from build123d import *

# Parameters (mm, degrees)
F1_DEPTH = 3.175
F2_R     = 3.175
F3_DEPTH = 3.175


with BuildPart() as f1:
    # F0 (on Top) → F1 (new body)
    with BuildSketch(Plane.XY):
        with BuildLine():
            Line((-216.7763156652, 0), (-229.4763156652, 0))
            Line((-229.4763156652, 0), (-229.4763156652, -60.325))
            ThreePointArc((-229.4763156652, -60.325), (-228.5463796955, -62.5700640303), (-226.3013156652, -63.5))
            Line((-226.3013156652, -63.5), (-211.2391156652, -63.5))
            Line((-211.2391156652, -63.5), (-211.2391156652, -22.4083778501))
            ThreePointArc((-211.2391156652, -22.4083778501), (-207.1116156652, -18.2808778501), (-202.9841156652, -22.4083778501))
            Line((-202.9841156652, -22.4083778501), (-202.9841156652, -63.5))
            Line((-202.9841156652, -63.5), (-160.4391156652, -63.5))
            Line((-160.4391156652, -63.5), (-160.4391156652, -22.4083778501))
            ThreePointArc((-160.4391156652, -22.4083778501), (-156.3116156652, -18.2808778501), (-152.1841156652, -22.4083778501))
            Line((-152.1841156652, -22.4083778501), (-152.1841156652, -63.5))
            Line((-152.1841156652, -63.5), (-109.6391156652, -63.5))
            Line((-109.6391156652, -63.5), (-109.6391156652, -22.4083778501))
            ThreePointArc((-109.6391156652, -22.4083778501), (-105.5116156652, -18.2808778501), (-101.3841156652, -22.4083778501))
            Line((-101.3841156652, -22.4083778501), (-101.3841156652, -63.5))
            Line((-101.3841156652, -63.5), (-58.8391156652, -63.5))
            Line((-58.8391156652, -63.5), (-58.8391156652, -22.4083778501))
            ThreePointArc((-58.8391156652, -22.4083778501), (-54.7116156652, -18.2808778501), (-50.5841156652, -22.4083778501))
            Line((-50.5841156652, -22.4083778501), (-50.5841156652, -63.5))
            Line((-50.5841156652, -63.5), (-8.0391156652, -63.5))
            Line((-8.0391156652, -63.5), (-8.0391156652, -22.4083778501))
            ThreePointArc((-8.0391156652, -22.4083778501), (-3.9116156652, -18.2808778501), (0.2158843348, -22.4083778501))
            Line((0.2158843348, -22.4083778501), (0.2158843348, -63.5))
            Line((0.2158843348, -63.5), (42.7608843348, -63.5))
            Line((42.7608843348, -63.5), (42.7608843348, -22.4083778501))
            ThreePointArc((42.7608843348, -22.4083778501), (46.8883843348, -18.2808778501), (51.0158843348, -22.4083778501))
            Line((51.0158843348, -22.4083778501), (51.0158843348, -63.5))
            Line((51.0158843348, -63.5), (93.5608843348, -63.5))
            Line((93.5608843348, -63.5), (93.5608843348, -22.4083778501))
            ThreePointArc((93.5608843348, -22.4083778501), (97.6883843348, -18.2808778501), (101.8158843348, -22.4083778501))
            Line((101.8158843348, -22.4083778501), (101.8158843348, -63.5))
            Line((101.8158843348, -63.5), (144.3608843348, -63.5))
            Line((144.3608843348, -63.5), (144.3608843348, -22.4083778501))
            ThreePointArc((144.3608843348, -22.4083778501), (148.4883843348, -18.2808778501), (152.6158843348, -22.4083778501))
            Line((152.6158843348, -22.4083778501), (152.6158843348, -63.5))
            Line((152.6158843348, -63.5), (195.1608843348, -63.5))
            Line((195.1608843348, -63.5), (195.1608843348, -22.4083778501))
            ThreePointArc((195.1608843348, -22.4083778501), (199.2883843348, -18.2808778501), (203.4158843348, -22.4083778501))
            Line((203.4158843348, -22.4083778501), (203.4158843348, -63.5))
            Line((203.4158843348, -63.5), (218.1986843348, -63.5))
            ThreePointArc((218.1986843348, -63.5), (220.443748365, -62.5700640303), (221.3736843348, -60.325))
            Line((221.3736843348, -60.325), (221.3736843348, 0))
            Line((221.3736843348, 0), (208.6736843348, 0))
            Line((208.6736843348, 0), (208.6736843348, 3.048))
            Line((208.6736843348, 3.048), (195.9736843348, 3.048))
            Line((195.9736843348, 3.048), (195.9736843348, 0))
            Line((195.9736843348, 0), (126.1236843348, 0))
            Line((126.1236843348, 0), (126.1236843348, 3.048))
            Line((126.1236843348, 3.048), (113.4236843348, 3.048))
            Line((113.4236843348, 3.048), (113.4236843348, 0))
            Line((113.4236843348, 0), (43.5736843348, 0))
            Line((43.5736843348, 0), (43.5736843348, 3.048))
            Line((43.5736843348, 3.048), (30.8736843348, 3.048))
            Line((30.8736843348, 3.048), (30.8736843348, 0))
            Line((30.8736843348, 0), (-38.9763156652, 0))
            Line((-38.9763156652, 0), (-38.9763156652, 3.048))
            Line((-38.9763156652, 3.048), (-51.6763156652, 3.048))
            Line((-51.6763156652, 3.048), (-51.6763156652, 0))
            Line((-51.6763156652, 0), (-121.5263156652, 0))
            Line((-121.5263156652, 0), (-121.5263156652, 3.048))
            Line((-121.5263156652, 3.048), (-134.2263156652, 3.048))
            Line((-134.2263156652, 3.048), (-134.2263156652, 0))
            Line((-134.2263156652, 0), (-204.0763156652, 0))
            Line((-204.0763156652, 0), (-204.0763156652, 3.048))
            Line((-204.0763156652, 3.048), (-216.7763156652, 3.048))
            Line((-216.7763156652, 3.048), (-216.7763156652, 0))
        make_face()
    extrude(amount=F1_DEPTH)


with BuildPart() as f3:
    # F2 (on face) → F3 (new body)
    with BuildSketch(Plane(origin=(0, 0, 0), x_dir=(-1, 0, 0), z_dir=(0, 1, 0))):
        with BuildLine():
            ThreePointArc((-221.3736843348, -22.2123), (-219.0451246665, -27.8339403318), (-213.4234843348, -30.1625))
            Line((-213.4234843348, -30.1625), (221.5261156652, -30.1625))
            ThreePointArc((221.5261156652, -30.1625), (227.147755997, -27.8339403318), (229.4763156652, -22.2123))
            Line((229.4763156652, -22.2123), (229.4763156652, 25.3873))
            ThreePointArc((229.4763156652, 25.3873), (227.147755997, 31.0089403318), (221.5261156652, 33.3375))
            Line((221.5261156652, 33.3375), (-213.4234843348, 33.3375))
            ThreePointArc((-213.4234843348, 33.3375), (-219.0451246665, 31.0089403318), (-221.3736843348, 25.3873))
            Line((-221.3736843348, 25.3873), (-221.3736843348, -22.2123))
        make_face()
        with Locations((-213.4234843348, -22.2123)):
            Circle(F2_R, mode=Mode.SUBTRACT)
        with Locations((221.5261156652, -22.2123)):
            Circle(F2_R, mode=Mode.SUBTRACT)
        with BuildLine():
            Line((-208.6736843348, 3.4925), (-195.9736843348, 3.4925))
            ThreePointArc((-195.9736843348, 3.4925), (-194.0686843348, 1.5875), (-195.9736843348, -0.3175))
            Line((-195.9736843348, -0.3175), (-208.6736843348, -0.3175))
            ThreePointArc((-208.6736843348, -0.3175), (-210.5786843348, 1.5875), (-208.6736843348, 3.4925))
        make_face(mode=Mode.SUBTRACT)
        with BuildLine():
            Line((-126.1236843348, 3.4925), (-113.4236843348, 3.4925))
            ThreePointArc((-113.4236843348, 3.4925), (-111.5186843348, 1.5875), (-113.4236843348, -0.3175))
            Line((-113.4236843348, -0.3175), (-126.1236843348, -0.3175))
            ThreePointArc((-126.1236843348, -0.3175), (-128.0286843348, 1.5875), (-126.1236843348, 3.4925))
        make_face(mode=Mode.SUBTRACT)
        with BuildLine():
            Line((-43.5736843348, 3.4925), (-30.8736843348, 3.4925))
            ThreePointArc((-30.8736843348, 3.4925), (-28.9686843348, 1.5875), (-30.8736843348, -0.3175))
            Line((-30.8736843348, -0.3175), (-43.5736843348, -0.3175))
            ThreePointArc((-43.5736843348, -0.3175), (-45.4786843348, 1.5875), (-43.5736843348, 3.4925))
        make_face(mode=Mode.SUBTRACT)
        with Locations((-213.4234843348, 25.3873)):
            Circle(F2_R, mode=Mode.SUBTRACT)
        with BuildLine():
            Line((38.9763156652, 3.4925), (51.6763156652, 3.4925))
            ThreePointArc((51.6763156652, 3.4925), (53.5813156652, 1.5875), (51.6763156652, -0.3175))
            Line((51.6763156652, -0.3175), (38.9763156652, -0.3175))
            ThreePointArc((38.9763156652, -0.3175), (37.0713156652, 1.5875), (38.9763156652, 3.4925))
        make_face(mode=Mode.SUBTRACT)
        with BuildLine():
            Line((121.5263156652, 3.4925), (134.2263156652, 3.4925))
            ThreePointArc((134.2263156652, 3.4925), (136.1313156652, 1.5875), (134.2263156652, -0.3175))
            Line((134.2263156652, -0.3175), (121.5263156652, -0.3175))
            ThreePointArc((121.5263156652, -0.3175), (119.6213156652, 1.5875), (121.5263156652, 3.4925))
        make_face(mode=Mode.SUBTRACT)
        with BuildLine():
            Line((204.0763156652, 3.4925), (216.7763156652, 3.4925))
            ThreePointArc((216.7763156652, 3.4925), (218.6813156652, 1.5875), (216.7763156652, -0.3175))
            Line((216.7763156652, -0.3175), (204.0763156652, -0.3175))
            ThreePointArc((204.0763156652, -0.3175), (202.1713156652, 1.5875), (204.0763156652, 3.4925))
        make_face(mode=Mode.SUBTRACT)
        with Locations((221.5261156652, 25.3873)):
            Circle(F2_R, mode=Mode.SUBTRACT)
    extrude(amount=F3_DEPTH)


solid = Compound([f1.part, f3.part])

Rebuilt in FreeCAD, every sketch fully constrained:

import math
import FreeCAD as App
import Part
import Sketcher
from FreeCAD import Vector
Q = App.Units.Quantity

doc = App.newDocument("Part")
params = doc.addObject("Spreadsheet::Sheet", "Params")
for row, (alias, value) in enumerate([
    ("sketch1_width", "0.5 in"),
    ("sketch1_radius", "0.125 in"),
    ("sketch1_width2", "2.75 in"),
    ("sketch1_height", "0.12 in"),
    ("sketch1_width3", "0.593 in"),
    ("pad1_length", "0.125 in"),
    ("sketch2_diameter", "0.25 in"),
    ("sketch2_width", "0.5 in"),
    ("sketch2_radius", "0.313 in"),
    ("sketch2_radius2", "0.075 in"),
    ("sketch2_width2", "17.124 in"),
    ("pad2_length", "0.125 in"),
], start=1):
    params.set(f"A{row}", alias)
    params.set(f"B{row}", "=" + value)
    params.setAlias(f"B{row}", alias)

body = doc.addObject("PartDesign::Body", "Body")

sketch1 = body.newObject("Sketcher::SketchObject", "Sketch")
sketch1.AttachmentSupport = (doc.getObject("XY_Plane"), [""])
sketch1.MapMode = "FlatFace"
sketch1.addGeometry([
    Part.LineSegment(Vector(-216.776316, 0, 0), Vector(-229.476316, 0, 0)),
    Part.LineSegment(Vector(-229.476316, 0, 0), Vector(-229.476316, -60.325, 0)),
    Part.ArcOfCircle(Part.Circle(Vector(-226.301316, -60.325, 0), Vector(0, 0, 1), 3.175), math.radians(180), math.radians(270)),
    Part.LineSegment(Vector(-226.301316, -63.5, 0), Vector(-211.239116, -63.5, 0)),
    Part.LineSegment(Vector(-211.239116, -63.5, 0), Vector(-211.239116, -22.408378, 0)),
    Part.ArcOfCircle(Part.Circle(Vector(-207.111616, -22.408378, 0), Vector(0, 0, 1), 4.1275), math.radians(0), math.radians(180)),
    Part.LineSegment(Vector(-202.984116, -22.408378, 0), Vector(-202.984116, -63.5, 0)),
    Part.LineSegment(Vector(-202.984116, -63.5, 0), Vector(-160.439116, -63.5, 0)),
    Part.LineSegment(Vector(-160.439116, -63.5, 0), Vector(-160.439116, -22.408378, 0)),
    Part.ArcOfCircle(Part.Circle(Vector(-156.311616, -22.408378, 0), Vector(0, 0, 1), 4.1275), math.radians(0), math.radians(180)),
    Part.LineSegment(Vector(-152.184116, -22.408378, 0), Vector(-152.184116, -63.5, 0)),
    Part.LineSegment(Vector(-152.184116, -63.5, 0), Vector(-109.639116, -63.5, 0)),
    Part.LineSegment(Vector(-109.639116, -63.5, 0), Vector(-109.639116, -22.408378, 0)),
    Part.ArcOfCircle(Part.Circle(Vector(-105.511616, -22.408378, 0), Vector(0, 0, 1), 4.1275), math.radians(0), math.radians(180)),
    Part.LineSegment(Vector(-101.384116, -22.408378, 0), Vector(-101.384116, -63.5, 0)),
    Part.LineSegment(Vector(-101.384116, -63.5, 0), Vector(-58.839116, -63.5, 0)),
    Part.LineSegment(Vector(-58.839116, -63.5, 0), Vector(-58.839116, -22.408378, 0)),
    Part.ArcOfCircle(Part.Circle(Vector(-54.711616, -22.408378, 0), Vector(0, 0, 1), 4.1275), math.radians(0), math.radians(180)),
    Part.LineSegment(Vector(-50.584116, -22.408378, 0), Vector(-50.584116, -63.5, 0)),
    Part.LineSegment(Vector(-50.584116, -63.5, 0), Vector(-8.039116, -63.5, 0)),
    Part.LineSegment(Vector(-8.039116, -63.5, 0), Vector(-8.039116, -22.408378, 0)),
    Part.ArcOfCircle(Part.Circle(Vector(-3.911616, -22.408378, 0), Vector(0, 0, 1), 4.1275), math.radians(0), math.radians(180)),
    Part.LineSegment(Vector(0.215884, -22.408378, 0), Vector(0.215884, -63.5, 0)),
    Part.LineSegment(Vector(0.215884, -63.5, 0), Vector(42.760884, -63.5, 0)),
    Part.LineSegment(Vector(42.760884, -63.5, 0), Vector(42.760884, -22.408378, 0)),
    Part.ArcOfCircle(Part.Circle(Vector(46.888384, -22.408378, 0), Vector(0, 0, 1), 4.1275), math.radians(0), math.radians(180)),
    Part.LineSegment(Vector(51.015884, -22.408378, 0), Vector(51.015884, -63.5, 0)),
    Part.LineSegment(Vector(51.015884, -63.5, 0), Vector(93.560884, -63.5, 0)),
    Part.LineSegment(Vector(93.560884, -63.5, 0), Vector(93.560884, -22.408378, 0)),
    Part.ArcOfCircle(Part.Circle(Vector(97.688384, -22.408378, 0), Vector(0, 0, 1), 4.1275), math.radians(0), math.radians(180)),
    Part.LineSegment(Vector(101.815884, -22.408378, 0), Vector(101.815884, -63.5, 0)),
    Part.LineSegment(Vector(101.815884, -63.5, 0), Vector(144.360884, -63.5, 0)),
    Part.LineSegment(Vector(144.360884, -63.5, 0), Vector(144.360884, -22.408378, 0)),
    Part.ArcOfCircle(Part.Circle(Vector(148.488384, -22.408378, 0), Vector(0, 0, 1), 4.1275), math.radians(0), math.radians(180)),
    Part.LineSegment(Vector(152.615884, -22.408378, 0), Vector(152.615884, -63.5, 0)),
    Part.LineSegment(Vector(152.615884, -63.5, 0), Vector(195.160884, -63.5, 0)),
    Part.LineSegment(Vector(195.160884, -63.5, 0), Vector(195.160884, -22.408378, 0)),
    Part.ArcOfCircle(Part.Circle(Vector(199.288384, -22.408378, 0), Vector(0, 0, 1), 4.1275), math.radians(0), math.radians(180)),
    Part.LineSegment(Vector(203.415884, -22.408378, 0), Vector(203.415884, -63.5, 0)),
    Part.LineSegment(Vector(203.415884, -63.5, 0), Vector(218.198684, -63.5, 0)),
    Part.ArcOfCircle(Part.Circle(Vector(218.198684, -60.325, 0), Vector(0, 0, 1), 3.175), math.radians(-90), math.radians(0)),
    Part.LineSegment(Vector(221.373684, -60.325, 0), Vector(221.373684, 0, 0)),
    Part.LineSegment(Vector(221.373684, 0, 0), Vector(208.673684, 0, 0)),
    Part.LineSegment(Vector(208.673684, 0, 0), Vector(208.673684, 3.048, 0)),
    Part.LineSegment(Vector(208.673684, 3.048, 0), Vector(195.973684, 3.048, 0)),
    Part.LineSegment(Vector(195.973684, 3.048, 0), Vector(195.973684, 0, 0)),
    Part.LineSegment(Vector(195.973684, 0, 0), Vector(126.123684, 0, 0)),
    Part.LineSegment(Vector(126.123684, 0, 0), Vector(126.123684, 3.048, 0)),
    Part.LineSegment(Vector(126.123684, 3.048, 0), Vector(113.423684, 3.048, 0)),
    Part.LineSegment(Vector(113.423684, 3.048, 0), Vector(113.423684, 0, 0)),
    Part.LineSegment(Vector(113.423684, 0, 0), Vector(43.573684, 0, 0)),
    Part.LineSegment(Vector(43.573684, 0, 0), Vector(43.573684, 3.048, 0)),
    Part.LineSegment(Vector(43.573684, 3.048, 0), Vector(30.873684, 3.048, 0)),
    Part.LineSegment(Vector(30.873684, 3.048, 0), Vector(30.873684, 0, 0)),
    Part.LineSegment(Vector(30.873684, 0, 0), Vector(-38.976316, 0, 0)),
    Part.LineSegment(Vector(-38.976316, 0, 0), Vector(-38.976316, 3.048, 0)),
    Part.LineSegment(Vector(-38.976316, 3.048, 0), Vector(-51.676316, 3.048, 0)),
    Part.LineSegment(Vector(-51.676316, 3.048, 0), Vector(-51.676316, 0, 0)),
    Part.LineSegment(Vector(-51.676316, 0, 0), Vector(-121.526316, 0, 0)),
    Part.LineSegment(Vector(-121.526316, 0, 0), Vector(-121.526316, 3.048, 0)),
    Part.LineSegment(Vector(-121.526316, 3.048, 0), Vector(-134.226316, 3.048, 0)),
    Part.LineSegment(Vector(-134.226316, 3.048, 0), Vector(-134.226316, 0, 0)),
    Part.LineSegment(Vector(-134.226316, 0, 0), Vector(-204.076316, 0, 0)),
    Part.LineSegment(Vector(-204.076316, 0, 0), Vector(-204.076316, 3.048, 0)),
    Part.LineSegment(Vector(-204.076316, 3.048, 0), Vector(-216.776316, 3.048, 0)),
    Part.LineSegment(Vector(-216.776316, 3.048, 0), Vector(-216.776316, 0, 0)),
], False)
sketch1.addConstraint([
    Sketcher.Constraint("Coincident", 0, 2, 1, 1),
    Sketcher.Constraint("Tangent", 1, 2, 2, 1),
    Sketcher.Constraint("Tangent", 2, 2, 3, 1),
    Sketcher.Constraint("Coincident", 3, 2, 4, 1),
    Sketcher.Constraint("Tangent", 4, 2, 5, 2),
    Sketcher.Constraint("Tangent", 5, 1, 6, 1),
    Sketcher.Constraint("Coincident", 6, 2, 7, 1),
    Sketcher.Constraint("Coincident", 7, 2, 8, 1),
    Sketcher.Constraint("Tangent", 8, 2, 9, 2),
    Sketcher.Constraint("Tangent", 9, 1, 10, 1),
    Sketcher.Constraint("Coincident", 10, 2, 11, 1),
    Sketcher.Constraint("Coincident", 11, 2, 12, 1),
    Sketcher.Constraint("Tangent", 12, 2, 13, 2),
    Sketcher.Constraint("Tangent", 13, 1, 14, 1),
    Sketcher.Constraint("Coincident", 14, 2, 15, 1),
    Sketcher.Constraint("Coincident", 15, 2, 16, 1),
    Sketcher.Constraint("Tangent", 16, 2, 17, 2),
    Sketcher.Constraint("Tangent", 17, 1, 18, 1),
    Sketcher.Constraint("Coincident", 18, 2, 19, 1),
    Sketcher.Constraint("Coincident", 19, 2, 20, 1),
    Sketcher.Constraint("Tangent", 20, 2, 21, 2),
    Sketcher.Constraint("Tangent", 21, 1, 22, 1),
    Sketcher.Constraint("Coincident", 22, 2, 23, 1),
    Sketcher.Constraint("Coincident", 23, 2, 24, 1),
    Sketcher.Constraint("Tangent", 24, 2, 25, 2),
    Sketcher.Constraint("Tangent", 25, 1, 26, 1),
    Sketcher.Constraint("Coincident", 26, 2, 27, 1),
    Sketcher.Constraint("Coincident", 27, 2, 28, 1),
    Sketcher.Constraint("Tangent", 28, 2, 29, 2),
    Sketcher.Constraint("Tangent", 29, 1, 30, 1),
    Sketcher.Constraint("Coincident", 30, 2, 31, 1),
    Sketcher.Constraint("Coincident", 31, 2, 32, 1),
    Sketcher.Constraint("Tangent", 32, 2, 33, 2),
    Sketcher.Constraint("Tangent", 33, 1, 34, 1),
    Sketcher.Constraint("Coincident", 34, 2, 35, 1),
    Sketcher.Constraint("Coincident", 35, 2, 36, 1),
    Sketcher.Constraint("Tangent", 36, 2, 37, 2),
    Sketcher.Constraint("Tangent", 37, 1, 38, 1),
    Sketcher.Constraint("Coincident", 38, 2, 39, 1),
    Sketcher.Constraint("Tangent", 39, 2, 40, 1),
    Sketcher.Constraint("Tangent", 40, 2, 41, 1),
    Sketcher.Constraint("Coincident", 41, 2, 42, 1),
    Sketcher.Constraint("Coincident", 42, 2, 43, 1),
    Sketcher.Constraint("Coincident", 43, 2, 44, 1),
    Sketcher.Constraint("Coincident", 44, 2, 45, 1),
    Sketcher.Constraint("Coincident", 45, 2, 46, 1),
    Sketcher.Constraint("Coincident", 46, 2, 47, 1),
    Sketcher.Constraint("Coincident", 47, 2, 48, 1),
    Sketcher.Constraint("Coincident", 48, 2, 49, 1),
    Sketcher.Constraint("Coincident", 49, 2, 50, 1),
    Sketcher.Constraint("Coincident", 50, 2, 51, 1),
    Sketcher.Constraint("Coincident", 51, 2, 52, 1),
    Sketcher.Constraint("Coincident", 52, 2, 53, 1),
    Sketcher.Constraint("Coincident", 53, 2, 54, 1),
    Sketcher.Constraint("Coincident", 54, 2, 55, 1),
    Sketcher.Constraint("Coincident", 55, 2, 56, 1),
    Sketcher.Constraint("Coincident", 56, 2, 57, 1),
    Sketcher.Constraint("Coincident", 57, 2, 58, 1),
    Sketcher.Constraint("Coincident", 58, 2, 59, 1),
    Sketcher.Constraint("Coincident", 59, 2, 60, 1),
    Sketcher.Constraint("Coincident", 60, 2, 61, 1),
    Sketcher.Constraint("Coincident", 61, 2, 62, 1),
    Sketcher.Constraint("Coincident", 62, 2, 63, 1),
    Sketcher.Constraint("Coincident", 63, 2, 64, 1),
    Sketcher.Constraint("Coincident", 64, 2, 65, 1),
    Sketcher.Constraint("Coincident", 65, 2, 0, 1),
    Sketcher.Constraint("Horizontal", 0),
    Sketcher.Constraint("Vertical", 1),
    Sketcher.Constraint("Horizontal", 3),
    Sketcher.Constraint("Vertical", 4),
    Sketcher.Constraint("Vertical", 6),
    Sketcher.Constraint("Horizontal", 7),
    Sketcher.Constraint("Vertical", 8),
    Sketcher.Constraint("Vertical", 10),
    Sketcher.Constraint("Horizontal", 11),
    Sketcher.Constraint("Vertical", 12),
    Sketcher.Constraint("Vertical", 14),
    Sketcher.Constraint("Horizontal", 15),
    Sketcher.Constraint("Vertical", 16),
    Sketcher.Constraint("Vertical", 18),
    Sketcher.Constraint("Horizontal", 19),
    Sketcher.Constraint("Vertical", 20),
    Sketcher.Constraint("Vertical", 22),
    Sketcher.Constraint("Horizontal", 23),
    Sketcher.Constraint("Vertical", 24),
    Sketcher.Constraint("Vertical", 26),
    Sketcher.Constraint("Horizontal", 27),
    Sketcher.Constraint("Vertical", 28),
    Sketcher.Constraint("Vertical", 30),
    Sketcher.Constraint("Horizontal", 31),
    Sketcher.Constraint("Vertical", 32),
    Sketcher.Constraint("Vertical", 34),
    Sketcher.Constraint("Horizontal", 35),
    Sketcher.Constraint("Vertical", 36),
    Sketcher.Constraint("Vertical", 38),
    Sketcher.Constraint("Horizontal", 39),
    Sketcher.Constraint("Vertical", 41),
    Sketcher.Constraint("Horizontal", 42),
    Sketcher.Constraint("Vertical", 43),
    Sketcher.Constraint("Horizontal", 44),
    Sketcher.Constraint("Vertical", 45),
    Sketcher.Constraint("Horizontal", 46),
    Sketcher.Constraint("Vertical", 47),
    Sketcher.Constraint("Horizontal", 48),
    Sketcher.Constraint("Vertical", 49),
    Sketcher.Constraint("Horizontal", 50),
    Sketcher.Constraint("Vertical", 51),
    Sketcher.Constraint("Horizontal", 52),
    Sketcher.Constraint("Vertical", 53),
    Sketcher.Constraint("Horizontal", 54),
    Sketcher.Constraint("Vertical", 55),
    Sketcher.Constraint("Horizontal", 56),
    Sketcher.Constraint("Vertical", 57),
    Sketcher.Constraint("Horizontal", 58),
    Sketcher.Constraint("Vertical", 59),
    Sketcher.Constraint("Horizontal", 60),
    Sketcher.Constraint("Vertical", 61),
    Sketcher.Constraint("Horizontal", 62),
    Sketcher.Constraint("Vertical", 63),
    Sketcher.Constraint("Horizontal", 64),
    Sketcher.Constraint("Vertical", 65),
    Sketcher.Constraint("Equal", 5, 9),
    Sketcher.Constraint("Equal", 9, 13),
    Sketcher.Constraint("Equal", 13, 17),
    Sketcher.Constraint("Equal", 17, 21),
    Sketcher.Constraint("Equal", 21, 25),
    Sketcher.Constraint("Equal", 25, 29),
    Sketcher.Constraint("Equal", 29, 33),
    Sketcher.Constraint("Equal", 33, 37),
    Sketcher.Constraint("Equal", 2, 40),
    Sketcher.Constraint("PointOnObject", 0, 2, -1),
    Sketcher.Constraint("PointOnObject", 41, 2, -1),
    Sketcher.Constraint("PointOnObject", 45, 2, -1),
    Sketcher.Constraint("PointOnObject", 49, 2, -1),
    Sketcher.Constraint("PointOnObject", 53, 2, -1),
    Sketcher.Constraint("PointOnObject", 57, 2, -1),
    Sketcher.Constraint("PointOnObject", 61, 2, -1),
    Sketcher.Constraint("Horizontal", 5, 3, 9, 3),
    Sketcher.Constraint("Horizontal", 9, 3, 13, 3),
    Sketcher.Constraint("Horizontal", 13, 3, 17, 3),
    Sketcher.Constraint("Horizontal", 17, 3, 21, 3),
    Sketcher.Constraint("Horizontal", 21, 3, 25, 3),
    Sketcher.Constraint("Horizontal", 25, 3, 29, 3),
    Sketcher.Constraint("Horizontal", 29, 3, 33, 3),
    Sketcher.Constraint("Horizontal", 33, 3, 37, 3),
    Sketcher.Constraint("Horizontal", 2, 3, 40, 3),
    Sketcher.Constraint("Horizontal", 3, 2, 6, 2),
    Sketcher.Constraint("Horizontal", 7, 2, 10, 2),
    Sketcher.Constraint("Horizontal", 11, 2, 14, 2),
    Sketcher.Constraint("Horizontal", 15, 2, 18, 2),
    Sketcher.Constraint("Horizontal", 19, 2, 22, 2),
    Sketcher.Constraint("Horizontal", 23, 2, 26, 2),
    Sketcher.Constraint("Horizontal", 27, 2, 30, 2),
    Sketcher.Constraint("Horizontal", 31, 2, 34, 2),
    Sketcher.Constraint("Horizontal", 44, 2, 47, 2),
    Sketcher.Constraint("Horizontal", 48, 2, 51, 2),
    Sketcher.Constraint("Horizontal", 52, 2, 55, 2),
    Sketcher.Constraint("Horizontal", 56, 2, 59, 2),
    Sketcher.Constraint("Horizontal", 60, 2, 63, 2),
    Sketcher.Constraint("Equal", 7, 11),
    Sketcher.Constraint("Equal", 11, 15),
    Sketcher.Constraint("Equal", 15, 19),
    Sketcher.Constraint("Equal", 19, 23),
    Sketcher.Constraint("Equal", 23, 27),
    Sketcher.Constraint("Equal", 27, 31),
    Sketcher.Constraint("Equal", 31, 35),
    Sketcher.Constraint("Equal", 0, 42),
    Sketcher.Constraint("Equal", 42, 44),
    Sketcher.Constraint("Equal", 44, 48),
    Sketcher.Constraint("Equal", 46, 50),
    Sketcher.Constraint("Equal", 48, 52),
    Sketcher.Constraint("Equal", 50, 54),
    Sketcher.Constraint("Equal", 52, 56),
    Sketcher.Constraint("Equal", 54, 58),
    Sketcher.Constraint("Equal", 56, 60),
    Sketcher.Constraint("Equal", 58, 62),
    Sketcher.Constraint("Equal", 60, 64),
    Sketcher.Constraint("DistanceX", 0, 2, 0, 1, Q("0.5 in")),
    Sketcher.Constraint("Radius", 2, Q("0.125 in")),
    Sketcher.Constraint("DistanceX", 46, 2, 46, 1, Q("2.75 in")),
    Sketcher.Constraint("DistanceY", 43, 1, 43, 2, Q("0.12 in")),
    Sketcher.Constraint("DistanceY", 2, 2, -1, 1, Q("2.5 in")),
    Sketcher.Constraint("Radius", 5, Q("0.1625 in")),
    Sketcher.Constraint("DistanceX", 3, 1, 3, 2, Q("0.593 in")),
    Sketcher.Constraint("DistanceX", 7, 1, 7, 2, Q("1.675 in")),
    Sketcher.Constraint("DistanceY", 4, 1, 4, 2, Q("41.091622 mm")),
    Sketcher.Constraint("DistanceX", 2, 3, -1, 1, Q("226.301316 mm")),
])
sketch1.setExpression("Constraints[177]", "Params.sketch1_width")
sketch1.setExpression("Constraints[178]", "Params.sketch1_radius")
sketch1.setExpression("Constraints[179]", "Params.sketch1_width2")
sketch1.setExpression("Constraints[180]", "Params.sketch1_height")
sketch1.setExpression("Constraints[183]", "Params.sketch1_width3")
pad1 = body.newObject("PartDesign::Pad", "Pad")
pad1.Profile = sketch1
pad1.setExpression("Length", "Params.pad1_length")
body2 = doc.addObject("PartDesign::Body", "Body001")

sketch2 = body2.newObject("Sketcher::SketchObject", "Sketch001")
sketch2.AttachmentSupport = (doc.getObject("XZ_Plane001"), [""])
sketch2.MapMode = "FlatFace"
sketch2.addGeometry([
    Part.ArcOfCircle(Part.Circle(Vector(213.423484, -22.2123, 0), Vector(0, 0, 1), 7.9502), math.radians(-90), math.radians(0)),
    Part.LineSegment(Vector(213.423484, -30.1625, 0), Vector(-221.526116, -30.1625, 0)),
    Part.ArcOfCircle(Part.Circle(Vector(-221.526116, -22.2123, 0), Vector(0, 0, 1), 7.9502), math.radians(180), math.radians(270)),
    Part.LineSegment(Vector(-229.476316, -22.2123, 0), Vector(-229.476316, 25.3873, 0)),
    Part.ArcOfCircle(Part.Circle(Vector(-221.526116, 25.3873, 0), Vector(0, 0, 1), 7.9502), math.radians(90), math.radians(180)),
    Part.LineSegment(Vector(-221.526116, 33.3375, 0), Vector(213.423484, 33.3375, 0)),
    Part.ArcOfCircle(Part.Circle(Vector(213.423484, 25.3873, 0), Vector(0, 0, 1), 7.9502), math.radians(0), math.radians(90)),
    Part.LineSegment(Vector(221.373684, 25.3873, 0), Vector(221.373684, -22.2123, 0)),
    Part.Circle(Vector(213.423484, -22.2123, 0), Vector(0, 0, 1), 3.175),
    Part.Circle(Vector(-221.526116, -22.2123, 0), Vector(0, 0, 1), 3.175),
    Part.ArcOfCircle(Part.Circle(Vector(208.673684, 1.5875, 0), Vector(0, 0, 1), 1.905), math.radians(-90), math.radians(90)),
    Part.LineSegment(Vector(208.673684, 3.4925, 0), Vector(195.973684, 3.4925, 0)),
    Part.ArcOfCircle(Part.Circle(Vector(195.973684, 1.5875, 0), Vector(0, 0, 1), 1.905), math.radians(90), math.radians(270)),
    Part.LineSegment(Vector(195.973684, -0.3175, 0), Vector(208.673684, -0.3175, 0)),
    Part.ArcOfCircle(Part.Circle(Vector(126.123684, 1.5875, 0), Vector(0, 0, 1), 1.905), math.radians(-90), math.radians(90)),
    Part.LineSegment(Vector(126.123684, 3.4925, 0), Vector(113.423684, 3.4925, 0)),
    Part.ArcOfCircle(Part.Circle(Vector(113.423684, 1.5875, 0), Vector(0, 0, 1), 1.905), math.radians(90), math.radians(270)),
    Part.LineSegment(Vector(113.423684, -0.3175, 0), Vector(126.123684, -0.3175, 0)),
    Part.ArcOfCircle(Part.Circle(Vector(43.573684, 1.5875, 0), Vector(0, 0, 1), 1.905), math.radians(-90), math.radians(90)),
    Part.LineSegment(Vector(43.573684, 3.4925, 0), Vector(30.873684, 3.4925, 0)),
    Part.ArcOfCircle(Part.Circle(Vector(30.873684, 1.5875, 0), Vector(0, 0, 1), 1.905), math.radians(90), math.radians(270)),
    Part.LineSegment(Vector(30.873684, -0.3175, 0), Vector(43.573684, -0.3175, 0)),
    Part.Circle(Vector(213.423484, 25.3873, 0), Vector(0, 0, 1), 3.175),
    Part.ArcOfCircle(Part.Circle(Vector(-38.976316, 1.5875, 0), Vector(0, 0, 1), 1.905), math.radians(-90), math.radians(90)),
    Part.LineSegment(Vector(-38.976316, 3.4925, 0), Vector(-51.676316, 3.4925, 0)),
    Part.ArcOfCircle(Part.Circle(Vector(-51.676316, 1.5875, 0), Vector(0, 0, 1), 1.905), math.radians(90), math.radians(270)),
    Part.LineSegment(Vector(-51.676316, -0.3175, 0), Vector(-38.976316, -0.3175, 0)),
    Part.ArcOfCircle(Part.Circle(Vector(-121.526316, 1.5875, 0), Vector(0, 0, 1), 1.905), math.radians(-90), math.radians(90)),
    Part.LineSegment(Vector(-121.526316, 3.4925, 0), Vector(-134.226316, 3.4925, 0)),
    Part.ArcOfCircle(Part.Circle(Vector(-134.226316, 1.5875, 0), Vector(0, 0, 1), 1.905), math.radians(90), math.radians(270)),
    Part.LineSegment(Vector(-134.226316, -0.3175, 0), Vector(-121.526316, -0.3175, 0)),
    Part.ArcOfCircle(Part.Circle(Vector(-204.076316, 1.5875, 0), Vector(0, 0, 1), 1.905), math.radians(-90), math.radians(90)),
    Part.LineSegment(Vector(-204.076316, 3.4925, 0), Vector(-216.776316, 3.4925, 0)),
    Part.ArcOfCircle(Part.Circle(Vector(-216.776316, 1.5875, 0), Vector(0, 0, 1), 1.905), math.radians(90), math.radians(270)),
    Part.LineSegment(Vector(-216.776316, -0.3175, 0), Vector(-204.076316, -0.3175, 0)),
    Part.Circle(Vector(-221.526116, 25.3873, 0), Vector(0, 0, 1), 3.175),
], False)
sketch2.addConstraint([
    Sketcher.Constraint("Tangent", 0, 1, 1, 1),
    Sketcher.Constraint("Tangent", 1, 2, 2, 2),
    Sketcher.Constraint("Tangent", 2, 1, 3, 1),
    Sketcher.Constraint("Tangent", 3, 2, 4, 2),
    Sketcher.Constraint("Tangent", 4, 1, 5, 1),
    Sketcher.Constraint("Tangent", 5, 2, 6, 2),
    Sketcher.Constraint("Tangent", 6, 1, 7, 1),
    Sketcher.Constraint("Tangent", 7, 2, 0, 2),
    Sketcher.Constraint("Tangent", 10, 2, 11, 1),
    Sketcher.Constraint("Tangent", 11, 2, 12, 1),
    Sketcher.Constraint("Tangent", 12, 2, 13, 1),
    Sketcher.Constraint("Tangent", 13, 2, 10, 1),
    Sketcher.Constraint("Tangent", 14, 2, 15, 1),
    Sketcher.Constraint("Tangent", 15, 2, 16, 1),
    Sketcher.Constraint("Tangent", 16, 2, 17, 1),
    Sketcher.Constraint("Tangent", 17, 2, 14, 1),
    Sketcher.Constraint("Tangent", 18, 2, 19, 1),
    Sketcher.Constraint("Tangent", 19, 2, 20, 1),
    Sketcher.Constraint("Tangent", 20, 2, 21, 1),
    Sketcher.Constraint("Tangent", 21, 2, 18, 1),
    Sketcher.Constraint("Tangent", 23, 2, 24, 1),
    Sketcher.Constraint("Tangent", 24, 2, 25, 1),
    Sketcher.Constraint("Tangent", 25, 2, 26, 1),
    Sketcher.Constraint("Tangent", 26, 2, 23, 1),
    Sketcher.Constraint("Tangent", 27, 2, 28, 1),
    Sketcher.Constraint("Tangent", 28, 2, 29, 1),
    Sketcher.Constraint("Tangent", 29, 2, 30, 1),
    Sketcher.Constraint("Tangent", 30, 2, 27, 1),
    Sketcher.Constraint("Tangent", 31, 2, 32, 1),
    Sketcher.Constraint("Tangent", 32, 2, 33, 1),
    Sketcher.Constraint("Tangent", 33, 2, 34, 1),
    Sketcher.Constraint("Tangent", 34, 2, 31, 1),
    Sketcher.Constraint("Horizontal", 1),
    Sketcher.Constraint("Vertical", 3),
    Sketcher.Constraint("Horizontal", 5),
    Sketcher.Constraint("Vertical", 7),
    Sketcher.Constraint("Horizontal", 11),
    Sketcher.Constraint("Horizontal", 13),
    Sketcher.Constraint("Horizontal", 15),
    Sketcher.Constraint("Horizontal", 17),
    Sketcher.Constraint("Horizontal", 19),
    Sketcher.Constraint("Horizontal", 21),
    Sketcher.Constraint("Horizontal", 24),
    Sketcher.Constraint("Horizontal", 26),
    Sketcher.Constraint("Horizontal", 28),
    Sketcher.Constraint("Horizontal", 30),
    Sketcher.Constraint("Horizontal", 32),
    Sketcher.Constraint("Horizontal", 34),
    Sketcher.Constraint("Coincident", 8, 3, 0, 3),
    Sketcher.Constraint("Coincident", 9, 3, 2, 3),
    Sketcher.Constraint("Coincident", 22, 3, 6, 3),
    Sketcher.Constraint("Coincident", 35, 3, 4, 3),
    Sketcher.Constraint("Equal", 0, 2),
    Sketcher.Constraint("Equal", 2, 4),
    Sketcher.Constraint("Equal", 4, 6),
    Sketcher.Constraint("Equal", 8, 9),
    Sketcher.Constraint("Equal", 12, 14),
    Sketcher.Constraint("Equal", 16, 18),
    Sketcher.Constraint("Equal", 9, 22),
    Sketcher.Constraint("Equal", 20, 23),
    Sketcher.Constraint("Equal", 25, 27),
    Sketcher.Constraint("Equal", 29, 31),
    Sketcher.Constraint("Equal", 22, 35),
    Sketcher.Constraint("Horizontal", 12, 3, 14, 3),
    Sketcher.Constraint("Horizontal", 16, 3, 18, 3),
    Sketcher.Constraint("Horizontal", 20, 3, 23, 3),
    Sketcher.Constraint("Horizontal", 25, 3, 27, 3),
    Sketcher.Constraint("Horizontal", 29, 3, 31, 3),
    Sketcher.Constraint("Equal", 13, 15),
    Sketcher.Constraint("Equal", 17, 19),
    Sketcher.Constraint("Equal", 21, 24),
    Sketcher.Constraint("Equal", 26, 28),
    Sketcher.Constraint("Equal", 30, 32),
    Sketcher.Constraint("Diameter", 8, Q("0.25 in")),
    Sketcher.Constraint("DistanceX", 11, 2, 11, 1, Q("0.5 in")),
    Sketcher.Constraint("Radius", 0, Q("0.313 in")),
    Sketcher.Constraint("Radius", 10, Q("0.075 in")),
    Sketcher.Constraint("DistanceX", 18, 3, 12, 3, Q("6 in")),
    Sketcher.Constraint("DistanceX", 23, 3, 16, 3, Q("6 in")),
    Sketcher.Constraint("DistanceX", 2, 1, 31, 3, Q("1 in")),
    Sketcher.Constraint("DistanceX", 12, 3, 6, 1, Q("1 in")),
    Sketcher.Constraint("DistanceX", 1, 2, 1, 1, Q("17.124 in")),
    Sketcher.Constraint("DistanceY", 3, 1, 3, 2, Q("1.874 in")),
    Sketcher.Constraint("DistanceX", 14, 3, 12, 3, Q("2.75 in")),
    Sketcher.Constraint("DistanceX", 27, 3, 25, 3, Q("2.75 in")),
    Sketcher.Constraint("DistanceY", 0, 1, 10, 3, Q("1.25 in")),
    Sketcher.Constraint("DistanceY", -1, 1, 10, 3, Q("0.0625 in")),
    Sketcher.Constraint("DistanceX", -1, 1, 0, 3, Q("213.423484 mm")),
])
sketch2.setExpression("Constraints[73]", "Params.sketch2_diameter")
sketch2.setExpression("Constraints[74]", "Params.sketch2_width")
sketch2.setExpression("Constraints[75]", "Params.sketch2_radius")
sketch2.setExpression("Constraints[76]", "Params.sketch2_radius2")
sketch2.setExpression("Constraints[81]", "Params.sketch2_width2")
pad2 = body2.newObject("PartDesign::Pad", "Pad001")
pad2.Profile = sketch2
pad2.setExpression("Length", "Params.pad2_length")
pad2.Reversed = True

doc.recompute()
